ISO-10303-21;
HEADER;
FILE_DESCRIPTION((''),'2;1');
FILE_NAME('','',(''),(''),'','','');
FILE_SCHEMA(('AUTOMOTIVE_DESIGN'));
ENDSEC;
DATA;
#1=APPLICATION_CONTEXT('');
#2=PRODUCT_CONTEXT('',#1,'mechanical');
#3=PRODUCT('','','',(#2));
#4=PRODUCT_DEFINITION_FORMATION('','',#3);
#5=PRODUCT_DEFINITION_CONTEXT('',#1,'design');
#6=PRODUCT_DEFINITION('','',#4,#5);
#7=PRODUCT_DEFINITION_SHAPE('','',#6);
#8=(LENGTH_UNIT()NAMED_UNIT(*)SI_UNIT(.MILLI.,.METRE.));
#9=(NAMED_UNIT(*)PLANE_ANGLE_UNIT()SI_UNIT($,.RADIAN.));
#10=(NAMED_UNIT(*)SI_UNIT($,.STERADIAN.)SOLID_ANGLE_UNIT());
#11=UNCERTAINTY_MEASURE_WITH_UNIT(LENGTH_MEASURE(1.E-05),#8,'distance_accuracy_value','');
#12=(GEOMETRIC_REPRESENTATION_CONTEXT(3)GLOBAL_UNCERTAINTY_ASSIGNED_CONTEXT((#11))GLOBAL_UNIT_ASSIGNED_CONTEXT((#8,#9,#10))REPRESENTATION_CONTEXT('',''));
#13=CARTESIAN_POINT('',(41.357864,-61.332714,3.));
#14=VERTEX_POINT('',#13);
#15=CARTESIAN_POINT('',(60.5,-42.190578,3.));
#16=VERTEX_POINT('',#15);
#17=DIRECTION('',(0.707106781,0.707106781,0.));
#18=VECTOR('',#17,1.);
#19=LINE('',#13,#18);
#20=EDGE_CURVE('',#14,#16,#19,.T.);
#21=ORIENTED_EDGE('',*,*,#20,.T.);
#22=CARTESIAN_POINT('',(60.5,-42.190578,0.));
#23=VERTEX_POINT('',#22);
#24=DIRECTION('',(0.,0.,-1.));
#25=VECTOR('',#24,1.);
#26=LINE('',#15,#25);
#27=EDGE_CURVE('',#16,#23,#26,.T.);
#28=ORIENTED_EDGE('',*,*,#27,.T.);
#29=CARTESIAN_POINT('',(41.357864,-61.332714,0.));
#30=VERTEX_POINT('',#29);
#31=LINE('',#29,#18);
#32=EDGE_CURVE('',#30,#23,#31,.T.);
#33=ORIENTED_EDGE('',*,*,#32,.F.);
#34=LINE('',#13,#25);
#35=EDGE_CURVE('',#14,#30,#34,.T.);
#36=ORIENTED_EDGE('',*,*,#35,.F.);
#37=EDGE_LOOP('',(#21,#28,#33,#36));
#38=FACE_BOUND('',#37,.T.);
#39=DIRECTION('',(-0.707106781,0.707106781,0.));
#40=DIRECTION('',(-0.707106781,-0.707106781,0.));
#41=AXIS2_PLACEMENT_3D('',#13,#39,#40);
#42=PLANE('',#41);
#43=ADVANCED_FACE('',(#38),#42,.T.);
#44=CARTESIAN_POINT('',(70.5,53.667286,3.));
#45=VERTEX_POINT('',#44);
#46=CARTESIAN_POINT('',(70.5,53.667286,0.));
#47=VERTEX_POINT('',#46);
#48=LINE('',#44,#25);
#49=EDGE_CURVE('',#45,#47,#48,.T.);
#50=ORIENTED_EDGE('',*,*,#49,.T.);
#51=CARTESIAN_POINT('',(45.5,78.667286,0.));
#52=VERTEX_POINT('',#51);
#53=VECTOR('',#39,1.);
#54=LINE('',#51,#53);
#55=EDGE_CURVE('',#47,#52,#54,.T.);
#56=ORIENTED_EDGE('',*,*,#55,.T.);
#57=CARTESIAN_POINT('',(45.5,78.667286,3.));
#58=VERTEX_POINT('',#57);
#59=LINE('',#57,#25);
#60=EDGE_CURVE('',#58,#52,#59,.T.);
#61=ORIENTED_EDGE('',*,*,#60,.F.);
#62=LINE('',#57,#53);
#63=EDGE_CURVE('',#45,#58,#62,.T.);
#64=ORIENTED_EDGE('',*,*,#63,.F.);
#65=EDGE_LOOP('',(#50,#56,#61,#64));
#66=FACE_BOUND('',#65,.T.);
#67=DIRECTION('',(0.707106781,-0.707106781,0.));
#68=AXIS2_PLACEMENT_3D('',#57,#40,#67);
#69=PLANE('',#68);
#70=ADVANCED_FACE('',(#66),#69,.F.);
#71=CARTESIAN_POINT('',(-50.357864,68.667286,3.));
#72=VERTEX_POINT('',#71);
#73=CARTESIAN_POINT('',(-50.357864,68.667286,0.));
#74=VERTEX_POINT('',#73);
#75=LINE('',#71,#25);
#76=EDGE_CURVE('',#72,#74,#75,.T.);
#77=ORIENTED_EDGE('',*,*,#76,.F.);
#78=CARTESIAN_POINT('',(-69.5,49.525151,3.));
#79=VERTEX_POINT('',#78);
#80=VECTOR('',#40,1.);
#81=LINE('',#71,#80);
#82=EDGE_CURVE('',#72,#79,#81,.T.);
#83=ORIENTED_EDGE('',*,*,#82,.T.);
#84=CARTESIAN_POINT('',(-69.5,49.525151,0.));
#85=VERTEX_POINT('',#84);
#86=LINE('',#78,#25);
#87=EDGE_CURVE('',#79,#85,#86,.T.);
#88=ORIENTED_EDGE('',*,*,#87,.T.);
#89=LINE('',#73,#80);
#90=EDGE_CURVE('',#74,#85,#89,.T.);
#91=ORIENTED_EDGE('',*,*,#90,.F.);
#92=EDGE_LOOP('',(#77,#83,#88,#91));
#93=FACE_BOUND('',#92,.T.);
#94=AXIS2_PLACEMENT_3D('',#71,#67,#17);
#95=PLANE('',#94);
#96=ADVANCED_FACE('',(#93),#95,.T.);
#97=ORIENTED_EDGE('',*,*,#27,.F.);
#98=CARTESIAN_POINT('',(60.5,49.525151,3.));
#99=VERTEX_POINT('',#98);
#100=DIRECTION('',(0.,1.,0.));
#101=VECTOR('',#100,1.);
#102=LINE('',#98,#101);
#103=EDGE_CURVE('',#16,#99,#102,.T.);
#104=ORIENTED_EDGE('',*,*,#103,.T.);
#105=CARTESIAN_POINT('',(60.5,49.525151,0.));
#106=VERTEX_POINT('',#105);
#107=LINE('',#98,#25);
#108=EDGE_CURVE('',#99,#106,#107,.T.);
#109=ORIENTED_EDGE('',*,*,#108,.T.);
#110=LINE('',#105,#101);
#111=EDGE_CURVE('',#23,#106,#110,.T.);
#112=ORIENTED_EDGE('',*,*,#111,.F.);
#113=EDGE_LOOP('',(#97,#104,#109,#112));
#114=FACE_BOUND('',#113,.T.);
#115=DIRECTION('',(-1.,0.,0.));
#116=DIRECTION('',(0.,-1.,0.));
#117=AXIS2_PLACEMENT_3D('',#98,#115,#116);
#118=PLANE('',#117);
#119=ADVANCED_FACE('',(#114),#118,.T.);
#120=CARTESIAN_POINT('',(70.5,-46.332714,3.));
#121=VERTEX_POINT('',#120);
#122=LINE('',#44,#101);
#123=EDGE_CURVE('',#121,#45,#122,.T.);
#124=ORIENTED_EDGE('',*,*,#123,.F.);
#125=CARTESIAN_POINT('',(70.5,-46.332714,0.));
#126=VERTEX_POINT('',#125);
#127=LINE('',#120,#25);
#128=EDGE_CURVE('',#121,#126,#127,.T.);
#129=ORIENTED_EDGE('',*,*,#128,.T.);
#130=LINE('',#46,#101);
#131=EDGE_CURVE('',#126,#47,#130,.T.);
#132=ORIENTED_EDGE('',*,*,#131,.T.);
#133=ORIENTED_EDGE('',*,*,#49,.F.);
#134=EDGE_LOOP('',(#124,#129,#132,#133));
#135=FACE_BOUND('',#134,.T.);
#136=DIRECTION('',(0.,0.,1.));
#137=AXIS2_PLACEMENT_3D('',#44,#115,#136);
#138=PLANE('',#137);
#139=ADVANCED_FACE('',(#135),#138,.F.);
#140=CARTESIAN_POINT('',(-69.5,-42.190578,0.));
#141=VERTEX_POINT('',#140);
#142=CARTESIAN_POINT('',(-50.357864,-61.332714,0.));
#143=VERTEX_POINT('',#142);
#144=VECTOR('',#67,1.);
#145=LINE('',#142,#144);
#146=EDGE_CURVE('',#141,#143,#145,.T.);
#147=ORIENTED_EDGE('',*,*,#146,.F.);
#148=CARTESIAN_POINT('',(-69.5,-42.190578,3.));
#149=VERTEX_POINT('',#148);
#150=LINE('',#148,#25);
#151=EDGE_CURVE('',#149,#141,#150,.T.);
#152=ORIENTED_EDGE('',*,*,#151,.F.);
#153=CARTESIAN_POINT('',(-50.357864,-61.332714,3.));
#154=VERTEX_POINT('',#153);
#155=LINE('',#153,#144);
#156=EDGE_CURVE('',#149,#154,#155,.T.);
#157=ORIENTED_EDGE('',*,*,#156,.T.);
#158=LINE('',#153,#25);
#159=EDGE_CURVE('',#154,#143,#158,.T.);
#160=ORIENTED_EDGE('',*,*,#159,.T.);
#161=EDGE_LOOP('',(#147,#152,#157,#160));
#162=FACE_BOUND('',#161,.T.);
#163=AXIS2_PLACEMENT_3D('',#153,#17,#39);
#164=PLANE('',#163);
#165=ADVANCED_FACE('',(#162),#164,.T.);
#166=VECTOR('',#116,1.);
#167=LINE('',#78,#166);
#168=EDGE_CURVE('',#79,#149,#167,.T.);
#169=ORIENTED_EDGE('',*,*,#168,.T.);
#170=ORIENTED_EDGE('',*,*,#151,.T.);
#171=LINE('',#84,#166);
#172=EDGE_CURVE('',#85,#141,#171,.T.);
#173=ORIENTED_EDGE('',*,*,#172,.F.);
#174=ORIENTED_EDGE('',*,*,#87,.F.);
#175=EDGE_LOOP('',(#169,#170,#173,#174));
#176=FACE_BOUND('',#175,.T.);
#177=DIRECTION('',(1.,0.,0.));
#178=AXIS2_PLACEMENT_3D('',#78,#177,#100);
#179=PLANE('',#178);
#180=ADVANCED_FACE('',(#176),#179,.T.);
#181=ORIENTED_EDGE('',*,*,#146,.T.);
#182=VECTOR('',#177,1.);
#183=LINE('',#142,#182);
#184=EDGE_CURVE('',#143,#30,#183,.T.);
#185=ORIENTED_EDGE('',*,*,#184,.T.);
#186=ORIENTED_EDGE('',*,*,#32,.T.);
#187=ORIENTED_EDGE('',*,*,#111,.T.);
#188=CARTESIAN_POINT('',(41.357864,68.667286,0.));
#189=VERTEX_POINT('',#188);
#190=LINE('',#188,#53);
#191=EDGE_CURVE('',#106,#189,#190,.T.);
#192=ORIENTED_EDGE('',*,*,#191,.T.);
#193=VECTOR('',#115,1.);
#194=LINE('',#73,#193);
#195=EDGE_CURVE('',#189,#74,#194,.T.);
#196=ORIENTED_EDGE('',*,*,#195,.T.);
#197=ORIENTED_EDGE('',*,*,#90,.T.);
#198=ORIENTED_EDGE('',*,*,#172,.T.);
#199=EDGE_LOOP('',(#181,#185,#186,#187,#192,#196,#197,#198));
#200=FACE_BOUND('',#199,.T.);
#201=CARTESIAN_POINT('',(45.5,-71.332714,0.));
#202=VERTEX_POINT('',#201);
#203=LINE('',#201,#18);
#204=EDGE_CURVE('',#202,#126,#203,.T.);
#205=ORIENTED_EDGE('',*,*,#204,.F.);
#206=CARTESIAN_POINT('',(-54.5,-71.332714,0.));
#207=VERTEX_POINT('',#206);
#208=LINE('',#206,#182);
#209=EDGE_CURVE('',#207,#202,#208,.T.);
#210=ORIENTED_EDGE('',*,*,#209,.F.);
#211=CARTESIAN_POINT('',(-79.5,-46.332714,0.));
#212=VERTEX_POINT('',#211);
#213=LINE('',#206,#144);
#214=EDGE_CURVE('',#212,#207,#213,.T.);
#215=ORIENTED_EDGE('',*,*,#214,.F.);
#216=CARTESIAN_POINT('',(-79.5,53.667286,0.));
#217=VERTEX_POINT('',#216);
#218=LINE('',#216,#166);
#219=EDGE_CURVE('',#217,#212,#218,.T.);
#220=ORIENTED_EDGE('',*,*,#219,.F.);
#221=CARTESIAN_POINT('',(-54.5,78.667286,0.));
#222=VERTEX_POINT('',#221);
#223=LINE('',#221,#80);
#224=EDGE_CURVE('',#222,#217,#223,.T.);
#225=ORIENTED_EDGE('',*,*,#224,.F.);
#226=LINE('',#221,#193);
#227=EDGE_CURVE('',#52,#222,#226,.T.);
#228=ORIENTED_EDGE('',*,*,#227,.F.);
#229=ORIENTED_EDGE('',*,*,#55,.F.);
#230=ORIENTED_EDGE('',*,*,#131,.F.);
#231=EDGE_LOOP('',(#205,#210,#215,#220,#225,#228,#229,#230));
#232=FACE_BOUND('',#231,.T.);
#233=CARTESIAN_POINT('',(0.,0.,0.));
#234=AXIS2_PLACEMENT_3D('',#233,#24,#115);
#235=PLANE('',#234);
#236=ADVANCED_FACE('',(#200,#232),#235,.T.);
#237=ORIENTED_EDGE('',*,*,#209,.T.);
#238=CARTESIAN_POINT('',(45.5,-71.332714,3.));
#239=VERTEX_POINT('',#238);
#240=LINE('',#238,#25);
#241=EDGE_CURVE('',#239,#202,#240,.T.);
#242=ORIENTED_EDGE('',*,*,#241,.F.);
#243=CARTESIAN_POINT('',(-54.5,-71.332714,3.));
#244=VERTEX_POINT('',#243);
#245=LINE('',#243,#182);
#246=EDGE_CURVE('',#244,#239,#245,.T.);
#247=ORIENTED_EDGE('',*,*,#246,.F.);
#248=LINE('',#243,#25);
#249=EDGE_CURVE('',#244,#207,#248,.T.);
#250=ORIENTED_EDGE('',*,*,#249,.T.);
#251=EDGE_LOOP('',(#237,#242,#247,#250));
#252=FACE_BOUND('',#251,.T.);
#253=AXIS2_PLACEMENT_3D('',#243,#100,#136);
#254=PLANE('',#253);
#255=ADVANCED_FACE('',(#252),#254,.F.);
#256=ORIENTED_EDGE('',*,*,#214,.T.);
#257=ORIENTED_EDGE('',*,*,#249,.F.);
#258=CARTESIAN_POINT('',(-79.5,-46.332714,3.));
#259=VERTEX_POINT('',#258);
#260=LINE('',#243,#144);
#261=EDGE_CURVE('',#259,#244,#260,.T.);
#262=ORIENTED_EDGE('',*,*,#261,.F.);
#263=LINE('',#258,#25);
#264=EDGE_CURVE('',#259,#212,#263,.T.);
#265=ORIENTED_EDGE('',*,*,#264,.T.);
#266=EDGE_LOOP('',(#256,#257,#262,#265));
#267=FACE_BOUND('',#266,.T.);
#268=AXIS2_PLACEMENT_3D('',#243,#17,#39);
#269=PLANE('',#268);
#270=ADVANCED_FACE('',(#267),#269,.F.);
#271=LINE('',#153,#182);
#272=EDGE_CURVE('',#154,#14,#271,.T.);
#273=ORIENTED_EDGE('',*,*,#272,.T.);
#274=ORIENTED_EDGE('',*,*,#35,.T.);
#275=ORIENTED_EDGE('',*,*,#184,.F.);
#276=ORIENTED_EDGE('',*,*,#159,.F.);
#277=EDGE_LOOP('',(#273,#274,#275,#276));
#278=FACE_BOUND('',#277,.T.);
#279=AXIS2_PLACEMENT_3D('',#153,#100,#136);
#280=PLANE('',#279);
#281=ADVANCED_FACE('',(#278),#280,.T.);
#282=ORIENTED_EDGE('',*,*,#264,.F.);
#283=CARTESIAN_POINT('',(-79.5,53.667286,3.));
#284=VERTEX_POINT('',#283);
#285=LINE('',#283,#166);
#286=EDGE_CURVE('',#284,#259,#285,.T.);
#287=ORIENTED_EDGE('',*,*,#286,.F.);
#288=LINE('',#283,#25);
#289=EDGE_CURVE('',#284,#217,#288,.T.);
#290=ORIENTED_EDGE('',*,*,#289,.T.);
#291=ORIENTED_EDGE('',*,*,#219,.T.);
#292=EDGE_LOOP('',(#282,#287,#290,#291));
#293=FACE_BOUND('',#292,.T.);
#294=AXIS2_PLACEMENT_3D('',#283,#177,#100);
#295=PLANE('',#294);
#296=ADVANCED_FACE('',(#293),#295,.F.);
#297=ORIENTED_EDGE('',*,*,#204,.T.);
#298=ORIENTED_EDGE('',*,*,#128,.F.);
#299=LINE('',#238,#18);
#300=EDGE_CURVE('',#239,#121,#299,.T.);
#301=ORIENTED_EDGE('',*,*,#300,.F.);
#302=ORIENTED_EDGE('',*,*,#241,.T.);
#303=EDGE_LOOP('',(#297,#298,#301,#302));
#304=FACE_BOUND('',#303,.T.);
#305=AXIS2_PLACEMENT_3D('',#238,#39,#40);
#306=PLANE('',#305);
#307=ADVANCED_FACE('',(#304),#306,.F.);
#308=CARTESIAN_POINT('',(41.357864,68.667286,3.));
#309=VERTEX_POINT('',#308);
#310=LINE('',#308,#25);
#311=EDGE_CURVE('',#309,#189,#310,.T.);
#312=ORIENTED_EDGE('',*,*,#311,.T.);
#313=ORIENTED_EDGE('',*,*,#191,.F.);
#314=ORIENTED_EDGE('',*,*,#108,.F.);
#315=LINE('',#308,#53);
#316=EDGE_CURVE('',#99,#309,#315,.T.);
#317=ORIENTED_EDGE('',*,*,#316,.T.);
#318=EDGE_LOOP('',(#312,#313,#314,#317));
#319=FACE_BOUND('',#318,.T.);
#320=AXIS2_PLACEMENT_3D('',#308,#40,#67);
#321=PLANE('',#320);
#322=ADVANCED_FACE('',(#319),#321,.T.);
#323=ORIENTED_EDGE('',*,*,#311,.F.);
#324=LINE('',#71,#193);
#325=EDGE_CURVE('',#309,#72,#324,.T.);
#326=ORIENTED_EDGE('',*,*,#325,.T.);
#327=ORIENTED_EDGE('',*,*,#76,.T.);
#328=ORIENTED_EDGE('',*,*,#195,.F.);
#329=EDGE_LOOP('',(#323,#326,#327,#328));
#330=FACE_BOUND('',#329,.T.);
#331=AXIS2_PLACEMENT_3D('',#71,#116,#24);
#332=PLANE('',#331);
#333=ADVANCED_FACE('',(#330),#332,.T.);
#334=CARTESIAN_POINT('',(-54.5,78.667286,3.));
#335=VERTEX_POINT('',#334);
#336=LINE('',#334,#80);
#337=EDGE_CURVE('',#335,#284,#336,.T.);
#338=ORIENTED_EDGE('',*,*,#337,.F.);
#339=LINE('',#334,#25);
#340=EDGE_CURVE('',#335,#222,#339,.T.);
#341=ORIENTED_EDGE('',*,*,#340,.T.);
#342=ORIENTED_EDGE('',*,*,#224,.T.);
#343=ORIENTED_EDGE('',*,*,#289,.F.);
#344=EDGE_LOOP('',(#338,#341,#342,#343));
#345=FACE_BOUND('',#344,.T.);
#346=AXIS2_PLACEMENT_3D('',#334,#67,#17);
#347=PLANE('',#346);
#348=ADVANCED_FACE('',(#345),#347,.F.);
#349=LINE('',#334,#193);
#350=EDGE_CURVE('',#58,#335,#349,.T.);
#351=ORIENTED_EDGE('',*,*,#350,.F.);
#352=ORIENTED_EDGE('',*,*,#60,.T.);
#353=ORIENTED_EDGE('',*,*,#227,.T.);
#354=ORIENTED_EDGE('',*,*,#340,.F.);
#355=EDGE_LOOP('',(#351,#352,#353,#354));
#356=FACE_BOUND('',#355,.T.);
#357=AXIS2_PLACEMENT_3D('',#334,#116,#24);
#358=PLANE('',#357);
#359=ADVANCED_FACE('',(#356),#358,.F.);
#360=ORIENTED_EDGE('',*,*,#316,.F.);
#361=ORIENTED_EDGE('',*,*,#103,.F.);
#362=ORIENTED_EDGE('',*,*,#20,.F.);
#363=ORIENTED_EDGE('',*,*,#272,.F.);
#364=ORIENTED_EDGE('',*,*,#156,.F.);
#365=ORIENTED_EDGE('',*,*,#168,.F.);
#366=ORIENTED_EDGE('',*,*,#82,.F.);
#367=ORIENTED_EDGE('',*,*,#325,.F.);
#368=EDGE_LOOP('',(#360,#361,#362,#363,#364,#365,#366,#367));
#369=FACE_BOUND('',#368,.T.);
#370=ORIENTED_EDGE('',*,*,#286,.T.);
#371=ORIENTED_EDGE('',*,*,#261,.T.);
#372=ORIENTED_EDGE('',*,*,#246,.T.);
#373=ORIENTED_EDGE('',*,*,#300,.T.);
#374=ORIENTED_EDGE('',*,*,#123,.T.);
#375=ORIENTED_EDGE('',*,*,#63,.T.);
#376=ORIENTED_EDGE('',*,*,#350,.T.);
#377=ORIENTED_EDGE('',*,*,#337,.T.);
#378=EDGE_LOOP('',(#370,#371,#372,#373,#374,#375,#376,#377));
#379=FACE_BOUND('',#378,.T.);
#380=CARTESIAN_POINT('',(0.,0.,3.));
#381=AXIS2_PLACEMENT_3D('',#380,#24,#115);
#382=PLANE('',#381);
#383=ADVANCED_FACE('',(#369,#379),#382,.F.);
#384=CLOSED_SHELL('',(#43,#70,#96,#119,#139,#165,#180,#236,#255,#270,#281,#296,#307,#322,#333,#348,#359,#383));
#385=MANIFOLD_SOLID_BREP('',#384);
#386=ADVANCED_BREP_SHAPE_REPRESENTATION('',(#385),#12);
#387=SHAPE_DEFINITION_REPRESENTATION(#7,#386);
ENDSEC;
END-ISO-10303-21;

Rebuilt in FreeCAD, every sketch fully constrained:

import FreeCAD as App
import Part
import Sketcher

V = App.Vector
Q = App.Units.Quantity

doc = App.newDocument("Part")
body = doc.addObject("PartDesign::Body", "Body")

# Sketch on XY plane
sketch1 = body.newObject("Sketcher::SketchObject", "Sketch")
sketch1.AttachmentSupport = (doc.getObject("XY_Plane"), [""])
sketch1.MapMode = "FlatFace"
sketch1.addGeometry(Part.LineSegment(V(70.5, 53.667286, 0), V(45.5, 78.667286, 0)), False)
sketch1.addGeometry(Part.LineSegment(V(45.5, 78.667286, 0), V(-54.5, 78.667286, 0)), False)
sketch1.addGeometry(Part.LineSegment(V(-54.5, 78.667286, 0), V(-79.5, 53.667286, 0)), False)
sketch1.addGeometry(Part.LineSegment(V(-79.5, 53.667286, 0), V(-79.5, -46.332714, 0)), False)
sketch1.addGeometry(Part.LineSegment(V(-79.5, -46.332714, 0), V(-54.5, -71.332714, 0)), False)
sketch1.addGeometry(Part.LineSegment(V(-54.5, -71.332714, 0), V(45.5, -71.332714, 0)), False)
sketch1.addGeometry(Part.LineSegment(V(45.5, -71.332714, 0), V(70.5, -46.332714, 0)), False)
sketch1.addGeometry(Part.LineSegment(V(70.5, -46.332714, 0), V(70.5, 53.667286, 0)), False)
sketch1.addGeometry(Part.LineSegment(V(41.357864, 68.667286, 0), V(60.5, 49.525151, 0)), False)
sketch1.addGeometry(Part.LineSegment(V(60.5, 49.525151, 0), V(60.5, -42.190578, 0)), False)
sketch1.addGeometry(Part.LineSegment(V(60.5, -42.190578, 0), V(41.357864, -61.332714, 0)), False)
sketch1.addGeometry(Part.LineSegment(V(41.357864, -61.332714, 0), V(-50.357864, -61.332714, 0)), False)
sketch1.addGeometry(Part.LineSegment(V(-50.357864, -61.332714, 0), V(-69.5, -42.190578, 0)), False)
sketch1.addGeometry(Part.LineSegment(V(-69.5, -42.190578, 0), V(-69.5, 49.525151, 0)), False)
sketch1.addGeometry(Part.LineSegment(V(-69.5, 49.525151, 0), V(-50.357864, 68.667286, 0)), False)
sketch1.addGeometry(Part.LineSegment(V(-50.357864, 68.667286, 0), V(41.357864, 68.667286, 0)), False)
sketch1.addConstraint(Sketcher.Constraint("Coincident", 0, 2, 1, 1))
sketch1.addConstraint(Sketcher.Constraint("Coincident", 1, 2, 2, 1))
sketch1.addConstraint(Sketcher.Constraint("Coincident", 2, 2, 3, 1))
sketch1.addConstraint(Sketcher.Constraint("Coincident", 3, 2, 4, 1))
sketch1.addConstraint(Sketcher.Constraint("Coincident", 4, 2, 5, 1))
sketch1.addConstraint(Sketcher.Constraint("Coincident", 5, 2, 6, 1))
sketch1.addConstraint(Sketcher.Constraint("Coincident", 6, 2, 7, 1))
sketch1.addConstraint(Sketcher.Constraint("Coincident", 7, 2, 0, 1))
sketch1.addConstraint(Sketcher.Constraint("Coincident", 8, 2, 9, 1))
sketch1.addConstraint(Sketcher.Constraint("Coincident", 9, 2, 10, 1))
sketch1.addConstraint(Sketcher.Constraint("Coincident", 10, 2, 11, 1))
sketch1.addConstraint(Sketcher.Constraint("Coincident", 11, 2, 12, 1))
sketch1.addConstraint(Sketcher.Constraint("Coincident", 12, 2, 13, 1))
sketch1.addConstraint(Sketcher.Constraint("Coincident", 13, 2, 14, 1))
sketch1.addConstraint(Sketcher.Constraint("Coincident", 14, 2, 15, 1))
sketch1.addConstraint(Sketcher.Constraint("Coincident", 15, 2, 8, 1))
sketch1.addConstraint(Sketcher.Constraint("Horizontal", 1))
sketch1.addConstraint(Sketcher.Constraint("Vertical", 3))
sketch1.addConstraint(Sketcher.Constraint("Horizontal", 5))
sketch1.addConstraint(Sketcher.Constraint("Vertical", 7))
sketch1.addConstraint(Sketcher.Constraint("Vertical", 9))
sketch1.addConstraint(Sketcher.Constraint("Horizontal", 11))
sketch1.addConstraint(Sketcher.Constraint("Vertical", 13))
sketch1.addConstraint(Sketcher.Constraint("Horizontal", 15))
sketch1.addConstraint(Sketcher.Constraint("Perpendicular", 0, 2))
sketch1.addConstraint(Sketcher.Constraint("Perpendicular", 2, 4))
sketch1.addConstraint(Sketcher.Constraint("Perpendicular", 4, 6))
sketch1.addConstraint(Sketcher.Constraint("Perpendicular", 6, 8))
sketch1.addConstraint(Sketcher.Constraint("Perpendicular", 8, 10))
sketch1.addConstraint(Sketcher.Constraint("Perpendicular", 10, 12))
sketch1.addConstraint(Sketcher.Constraint("Perpendicular", 12, 14))
sketch1.addConstraint(Sketcher.Constraint("Horizontal", 3, 2, 6, 2))
sketch1.addConstraint(Sketcher.Constraint("Horizontal", 2, 2, 7, 2))
sketch1.addConstraint(Sketcher.Constraint("Horizontal", 9, 2, 12, 2))
sketch1.addConstraint(Sketcher.Constraint("Horizontal", 8, 2, 13, 2))
sketch1.addConstraint(Sketcher.Constraint("Vertical", 1, 2, 4, 2))
sketch1.addConstraint(Sketcher.Constraint("Vertical", 0, 2, 5, 2))
sketch1.addConstraint(Sketcher.Constraint("Vertical", 11, 2, 14, 2))
sketch1.addConstraint(Sketcher.Constraint("Equal", 5, 3))
sketch1.addConstraint(Sketcher.Constraint("Equal", 15, 9))
sketch1.addConstraint(Sketcher.Constraint("DistanceX", 1, 2, 1, 1, Q("100 mm")))
sketch1.addConstraint(Sketcher.Constraint("DistanceX", 2, 2, 1, 2, Q("25 mm")))
sketch1.addConstraint(Sketcher.Constraint("DistanceX", 8, 2, 7, 2, Q("10 mm")))
sketch1.addConstraint(Sketcher.Constraint("DistanceY", 5, 2, 10, 2, Q("10 mm")))
sketch1.addConstraint(Sketcher.Constraint("DistanceX", 3, 2, 12, 2, Q("10 mm")))
sketch1.addConstraint(Sketcher.Constraint("DistanceX", -1, 1, 0, 2, Q("45.5 mm")))
sketch1.addConstraint(Sketcher.Constraint("DistanceX", 11, 2, 11, 1, Q("91.715729 mm")))
sketch1.addConstraint(Sketcher.Constraint("DistanceY", -1, 1, 8, 2, Q("49.525151 mm")))
pad1 = body.newObject("PartDesign::Pad", "Pad")
pad1.Profile = sketch1
pad1.Length = 3

doc.recompute()
